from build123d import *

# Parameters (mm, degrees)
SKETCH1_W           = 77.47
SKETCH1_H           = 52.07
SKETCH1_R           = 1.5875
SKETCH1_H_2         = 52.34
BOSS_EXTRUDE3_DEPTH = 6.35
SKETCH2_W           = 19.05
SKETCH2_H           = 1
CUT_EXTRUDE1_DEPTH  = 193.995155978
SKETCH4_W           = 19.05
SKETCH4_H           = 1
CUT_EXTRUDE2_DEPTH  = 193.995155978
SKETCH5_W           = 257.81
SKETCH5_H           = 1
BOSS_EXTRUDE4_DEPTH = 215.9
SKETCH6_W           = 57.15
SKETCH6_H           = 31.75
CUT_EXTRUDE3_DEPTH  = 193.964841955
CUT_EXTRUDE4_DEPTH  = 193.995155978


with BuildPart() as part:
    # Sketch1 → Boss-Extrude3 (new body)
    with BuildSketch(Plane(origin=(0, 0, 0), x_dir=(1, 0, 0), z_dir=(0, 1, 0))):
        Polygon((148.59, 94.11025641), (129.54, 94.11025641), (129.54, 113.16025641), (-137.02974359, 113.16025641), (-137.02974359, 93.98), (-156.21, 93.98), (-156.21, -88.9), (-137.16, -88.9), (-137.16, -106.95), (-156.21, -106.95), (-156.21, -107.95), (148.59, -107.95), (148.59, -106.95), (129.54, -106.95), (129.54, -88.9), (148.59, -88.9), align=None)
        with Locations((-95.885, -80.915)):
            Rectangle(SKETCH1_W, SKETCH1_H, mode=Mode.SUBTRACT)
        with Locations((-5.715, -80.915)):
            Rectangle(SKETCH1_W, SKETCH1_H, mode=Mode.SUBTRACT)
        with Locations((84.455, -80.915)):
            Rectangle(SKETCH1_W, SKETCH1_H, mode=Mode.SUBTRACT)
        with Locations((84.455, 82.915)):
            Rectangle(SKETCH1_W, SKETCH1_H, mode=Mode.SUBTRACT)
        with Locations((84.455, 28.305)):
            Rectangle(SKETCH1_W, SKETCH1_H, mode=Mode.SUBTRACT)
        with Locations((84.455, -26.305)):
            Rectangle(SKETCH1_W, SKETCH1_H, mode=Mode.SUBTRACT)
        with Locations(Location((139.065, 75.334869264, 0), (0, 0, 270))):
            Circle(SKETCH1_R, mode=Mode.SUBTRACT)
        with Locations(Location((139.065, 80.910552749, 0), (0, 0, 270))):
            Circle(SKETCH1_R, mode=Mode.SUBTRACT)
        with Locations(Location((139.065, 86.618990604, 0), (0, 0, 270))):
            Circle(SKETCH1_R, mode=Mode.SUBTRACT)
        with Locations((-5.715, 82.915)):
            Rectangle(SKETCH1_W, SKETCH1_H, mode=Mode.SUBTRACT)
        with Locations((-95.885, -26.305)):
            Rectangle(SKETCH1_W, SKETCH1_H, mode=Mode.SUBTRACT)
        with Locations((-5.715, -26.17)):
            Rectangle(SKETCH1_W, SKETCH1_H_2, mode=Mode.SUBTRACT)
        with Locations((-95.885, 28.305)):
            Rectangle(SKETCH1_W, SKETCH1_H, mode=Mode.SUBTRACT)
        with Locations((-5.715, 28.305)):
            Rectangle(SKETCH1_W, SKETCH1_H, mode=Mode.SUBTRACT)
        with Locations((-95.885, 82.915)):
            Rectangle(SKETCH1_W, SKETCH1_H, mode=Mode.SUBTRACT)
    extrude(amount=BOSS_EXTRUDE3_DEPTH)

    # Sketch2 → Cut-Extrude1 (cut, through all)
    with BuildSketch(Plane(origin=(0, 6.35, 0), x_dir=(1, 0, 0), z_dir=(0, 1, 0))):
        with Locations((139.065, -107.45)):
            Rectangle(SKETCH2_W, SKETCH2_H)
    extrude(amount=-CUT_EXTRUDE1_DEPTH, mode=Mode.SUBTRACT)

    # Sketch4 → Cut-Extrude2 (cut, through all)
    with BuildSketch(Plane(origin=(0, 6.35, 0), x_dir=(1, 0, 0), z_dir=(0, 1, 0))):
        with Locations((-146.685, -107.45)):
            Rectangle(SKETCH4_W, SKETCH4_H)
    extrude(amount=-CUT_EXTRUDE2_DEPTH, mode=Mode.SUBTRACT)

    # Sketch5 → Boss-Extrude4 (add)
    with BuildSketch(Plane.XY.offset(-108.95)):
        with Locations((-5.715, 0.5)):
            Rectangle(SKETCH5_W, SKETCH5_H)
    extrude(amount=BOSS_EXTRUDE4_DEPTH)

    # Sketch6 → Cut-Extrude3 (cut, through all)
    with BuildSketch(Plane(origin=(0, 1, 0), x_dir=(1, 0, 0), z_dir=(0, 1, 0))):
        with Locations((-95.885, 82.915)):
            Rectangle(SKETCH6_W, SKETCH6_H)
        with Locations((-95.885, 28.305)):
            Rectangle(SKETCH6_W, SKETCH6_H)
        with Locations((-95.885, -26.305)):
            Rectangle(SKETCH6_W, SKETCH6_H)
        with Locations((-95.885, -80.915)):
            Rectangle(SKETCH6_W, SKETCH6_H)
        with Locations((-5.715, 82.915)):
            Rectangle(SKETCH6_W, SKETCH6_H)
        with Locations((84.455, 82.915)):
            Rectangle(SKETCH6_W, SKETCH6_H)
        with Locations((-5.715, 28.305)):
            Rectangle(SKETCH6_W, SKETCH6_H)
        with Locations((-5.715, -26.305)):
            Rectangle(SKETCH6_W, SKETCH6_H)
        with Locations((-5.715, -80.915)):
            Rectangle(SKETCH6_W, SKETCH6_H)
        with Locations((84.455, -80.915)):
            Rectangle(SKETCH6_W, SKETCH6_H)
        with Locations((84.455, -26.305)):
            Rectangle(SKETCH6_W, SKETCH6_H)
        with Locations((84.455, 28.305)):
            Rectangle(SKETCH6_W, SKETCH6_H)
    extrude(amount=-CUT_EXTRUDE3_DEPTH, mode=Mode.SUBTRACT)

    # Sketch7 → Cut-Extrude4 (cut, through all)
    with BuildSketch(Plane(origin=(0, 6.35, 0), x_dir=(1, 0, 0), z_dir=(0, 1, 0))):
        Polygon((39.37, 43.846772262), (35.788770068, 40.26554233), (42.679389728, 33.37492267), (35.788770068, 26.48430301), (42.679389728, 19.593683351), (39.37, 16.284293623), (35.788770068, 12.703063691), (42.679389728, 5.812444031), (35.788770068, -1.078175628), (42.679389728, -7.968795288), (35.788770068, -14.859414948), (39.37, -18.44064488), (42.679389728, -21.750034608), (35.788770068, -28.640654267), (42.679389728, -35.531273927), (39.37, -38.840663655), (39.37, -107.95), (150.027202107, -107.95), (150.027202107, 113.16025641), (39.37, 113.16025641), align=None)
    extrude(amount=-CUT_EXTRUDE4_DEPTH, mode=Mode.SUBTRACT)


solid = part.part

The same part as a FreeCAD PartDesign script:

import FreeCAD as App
import Part
import Sketcher

V = App.Vector
Q = App.Units.Quantity

doc = App.newDocument("Part")
body = doc.addObject("PartDesign::Body", "Body")

# Sketch on XZ plane
sketch1 = body.newObject("Sketcher::SketchObject", "Sketch")
sketch1.AttachmentSupport = (doc.getObject("XZ_Plane"), [""])
sketch1.MapMode = "FlatFace"
sketch1.addGeometry(Part.LineSegment(V(148.6, -94.1, 0), V(129.5, -94.1, 0)), False)
sketch1.addGeometry(Part.LineSegment(V(129.5, -94.1, 0), V(129.5, -113.2, 0)), False)
sketch1.addGeometry(Part.LineSegment(V(129.5, -113.2, 0), V(-137, -113.2, 0)), False)
sketch1.addGeometry(Part.LineSegment(V(-137, -113.2, 0), V(-137, -94, 0)), False)
sketch1.addGeometry(Part.LineSegment(V(-137, -94, 0), V(-156.2, -94, 0)), False)
sketch1.addGeometry(Part.LineSegment(V(-156.2, -94, 0), V(-156.2, 88.9, 0)), False)
sketch1.addGeometry(Part.LineSegment(V(-156.2, 88.9, 0), V(-137.2, 88.9, 0)), False)
sketch1.addGeometry(Part.LineSegment(V(-137.2, 88.9, 0), V(-137.2, 107, 0)), False)
sketch1.addGeometry(Part.LineSegment(V(-137.2, 107, 0), V(-156.2, 107, 0)), False)
sketch1.addGeometry(Part.LineSegment(V(-156.2, 107, 0), V(-156.2, 108, 0)), False)
sketch1.addGeometry(Part.LineSegment(V(-156.2, 108, 0), V(148.6, 108, 0)), False)
sketch1.addGeometry(Part.LineSegment(V(148.6, 108, 0), V(148.6, 107, 0)), False)
sketch1.addGeometry(Part.LineSegment(V(148.6, 107, 0), V(129.5, 107, 0)), False)
sketch1.addGeometry(Part.LineSegment(V(129.5, 107, 0), V(129.5, 88.9, 0)), False)
sketch1.addGeometry(Part.LineSegment(V(129.5, 88.9, 0), V(148.6, 88.9, 0)), False)
sketch1.addGeometry(Part.LineSegment(V(148.6, 88.9, 0), V(148.6, -94.1, 0)), False)
sketch1.addGeometry(Part.LineSegment(V(-57.1, 107, 0), V(-134.6, 107, 0)), False)
sketch1.addGeometry(Part.LineSegment(V(-134.6, 107, 0), V(-134.6, 54.9, 0)), False)
sketch1.addGeometry(Part.LineSegment(V(-134.6, 54.9, 0), V(-57.1, 54.9, 0)), False)
sketch1.addGeometry(Part.LineSegment(V(-57.1, 54.9, 0), V(-57.1, 107, 0)), False)
sketch1.addGeometry(Part.LineSegment(V(33, 107, 0), V(-44.5, 107, 0)), False)
sketch1.addGeometry(Part.LineSegment(V(-44.5, 107, 0), V(-44.5, 54.9, 0)), False)
sketch1.addGeometry(Part.LineSegment(V(-44.5, 54.9, 0), V(33, 54.9, 0)), False)
sketch1.addGeometry(Part.LineSegment(V(33, 54.9, 0), V(33, 107, 0)), False)
sketch1.addGeometry(Part.LineSegment(V(-57.1, 52.3, 0), V(-134.6, 52.3, 0)), False)
sketch1.addGeometry(Part.LineSegment(V(-134.6, 52.3, 0), V(-134.6, 0.3, 0)), False)
sketch1.addGeometry(Part.LineSegment(V(-134.6, 0.3, 0), V(-57.1, 0.3, 0)), False)
sketch1.addGeometry(Part.LineSegment(V(-57.1, 0.3, 0), V(-57.1, 52.3, 0)), False)
sketch1.addGeometry(Part.LineSegment(V(33, 52.3, 0), V(-44.5, 52.3, 0)), False)
sketch1.addGeometry(Part.LineSegment(V(-44.5, 52.3, 0), V(-44.5, 0, 0)), False)
sketch1.addGeometry(Part.LineSegment(V(-44.5, 0, 0), V(33, 0, 0)), False)
sketch1.addGeometry(Part.LineSegment(V(33, 0, 0), V(33, 52.3, 0)), False)
sketch1.addGeometry(Part.LineSegment(V(123.2, 107, 0), V(45.7, 107, 0)), False)
sketch1.addGeometry(Part.LineSegment(V(45.7, 107, 0), V(45.7, 54.9, 0)), False)
sketch1.addGeometry(Part.LineSegment(V(45.7, 54.9, 0), V(123.2, 54.9, 0)), False)
sketch1.addGeometry(Part.LineSegment(V(123.2, 54.9, 0), V(123.2, 107, 0)), False)
sketch1.addGeometry(Part.LineSegment(V(123.2, 52.3, 0), V(45.7, 52.3, 0)), False)
sketch1.addGeometry(Part.LineSegment(V(45.7, 52.3, 0), V(45.7, 0.3, 0)), False)
sketch1.addGeometry(Part.LineSegment(V(45.7, 0.3, 0), V(123.2, 0.3, 0)), False)
sketch1.addGeometry(Part.LineSegment(V(123.2, 0.3, 0), V(123.2, 52.3, 0)), False)
sketch1.addGeometry(Part.LineSegment(V(-57.1, -2.3, 0), V(-134.6, -2.3, 0)), False)
sketch1.addGeometry(Part.LineSegment(V(-134.6, -2.3, 0), V(-134.6, -54.3, 0)), False)
sketch1.addGeometry(Part.LineSegment(V(-134.6, -54.3, 0), V(-57.1, -54.3, 0)), False)
sketch1.addGeometry(Part.LineSegment(V(-57.1, -54.3, 0), V(-57.1, -2.3, 0)), False)
sketch1.addGeometry(Part.LineSegment(V(33, -2.3, 0), V(-44.5, -2.3, 0)), False)
sketch1.addGeometry(Part.LineSegment(V(-44.5, -2.3, 0), V(-44.5, -54.3, 0)), False)
sketch1.addGeometry(Part.LineSegment(V(-44.5, -54.3, 0), V(33, -54.3, 0)), False)
sketch1.addGeometry(Part.LineSegment(V(33, -54.3, 0), V(33, -2.3, 0)), False)
sketch1.addGeometry(Part.LineSegment(V(-57.1, -56.9, 0), V(-134.6, -56.9, 0)), False)
sketch1.addGeometry(Part.LineSegment(V(-134.6, -56.9, 0), V(-134.6, -109, 0)), False)
sketch1.addGeometry(Part.LineSegment(V(-134.6, -109, 0), V(-57.1, -109, 0)), False)
sketch1.addGeometry(Part.LineSegment(V(-57.1, -109, 0), V(-57.1, -56.9, 0)), False)
sketch1.addGeometry(Part.LineSegment(V(33, -56.9, 0), V(-44.5, -56.9, 0)), False)
sketch1.addGeometry(Part.LineSegment(V(-44.5, -56.9, 0), V(-44.5, -109, 0)), False)
sketch1.addGeometry(Part.LineSegment(V(-44.5, -109, 0), V(33, -109, 0)), False)
sketch1.addGeometry(Part.LineSegment(V(33, -109, 0), V(33, -56.9, 0)), False)
sketch1.addGeometry(Part.LineSegment(V(123.2, -2.3, 0), V(45.7, -2.3, 0)), False)
sketch1.addGeometry(Part.LineSegment(V(45.7, -2.3, 0), V(45.7, -54.3, 0)), False)
sketch1.addGeometry(Part.LineSegment(V(45.7, -54.3, 0), V(123.2, -54.3, 0)), False)
sketch1.addGeometry(Part.LineSegment(V(123.2, -54.3, 0), V(123.2, -2.3, 0)), False)
sketch1.addGeometry(Part.Circle(V(139.1, -75.3, 0), V(0, 0, 1), 1.6), False)
sketch1.addGeometry(Part.Circle(V(139.1, -80.9, 0), V(0, 0, 1), 1.6), False)
sketch1.addGeometry(Part.LineSegment(V(123.2, -56.9, 0), V(45.7, -56.9, 0)), False)
sketch1.addGeometry(Part.LineSegment(V(45.7, -56.9, 0), V(45.7, -109, 0)), False)
sketch1.addGeometry(Part.LineSegment(V(45.7, -109, 0), V(123.2, -109, 0)), False)
sketch1.addGeometry(Part.LineSegment(V(123.2, -109, 0), V(123.2, -56.9, 0)), False)
sketch1.addGeometry(Part.Circle(V(139.1, -86.6, 0), V(0, 0, 1), 1.6), False)
sketch1.addConstraint(Sketcher.Constraint("Coincident", 0, 2, 1, 1))
sketch1.addConstraint(Sketcher.Constraint("Coincident", 1, 2, 2, 1))
sketch1.addConstraint(Sketcher.Constraint("Coincident", 2, 2, 3, 1))
sketch1.addConstraint(Sketcher.Constraint("Coincident", 3, 2, 4, 1))
sketch1.addConstraint(Sketcher.Constraint("Coincident", 4, 2, 5, 1))
sketch1.addConstraint(Sketcher.Constraint("Coincident", 5, 2, 6, 1))
sketch1.addConstraint(Sketcher.Constraint("Coincident", 6, 2, 7, 1))
sketch1.addConstraint(Sketcher.Constraint("Coincident", 7, 2, 8, 1))
sketch1.addConstraint(Sketcher.Constraint("Coincident", 8, 2, 9, 1))
sketch1.addConstraint(Sketcher.Constraint("Coincident", 9, 2, 10, 1))
sketch1.addConstraint(Sketcher.Constraint("Coincident", 10, 2, 11, 1))
sketch1.addConstraint(Sketcher.Constraint("Coincident", 11, 2, 12, 1))
sketch1.addConstraint(Sketcher.Constraint("Coincident", 12, 2, 13, 1))
sketch1.addConstraint(Sketcher.Constraint("Coincident", 13, 2, 14, 1))
sketch1.addConstraint(Sketcher.Constraint("Coincident", 14, 2, 15, 1))
sketch1.addConstraint(Sketcher.Constraint("Coincident", 15, 2, 0, 1))
sketch1.addConstraint(Sketcher.Constraint("Coincident", 16, 2, 17, 1))
sketch1.addConstraint(Sketcher.Constraint("Coincident", 17, 2, 18, 1))
sketch1.addConstraint(Sketcher.Constraint("Coincident", 18, 2, 19, 1))
sketch1.addConstraint(Sketcher.Constraint("Coincident", 19, 2, 16, 1))
sketch1.addConstraint(Sketcher.Constraint("Coincident", 20, 2, 21, 1))
sketch1.addConstraint(Sketcher.Constraint("Coincident", 21, 2, 22, 1))
sketch1.addConstraint(Sketcher.Constraint("Coincident", 22, 2, 23, 1))
sketch1.addConstraint(Sketcher.Constraint("Coincident", 23, 2, 20, 1))
sketch1.addConstraint(Sketcher.Constraint("Coincident", 24, 2, 25, 1))
sketch1.addConstraint(Sketcher.Constraint("Coincident", 25, 2, 26, 1))
sketch1.addConstraint(Sketcher.Constraint("Coincident", 26, 2, 27, 1))
sketch1.addConstraint(Sketcher.Constraint("Coincident", 27, 2, 24, 1))
sketch1.addConstraint(Sketcher.Constraint("Coincident", 28, 2, 29, 1))
sketch1.addConstraint(Sketcher.Constraint("Coincident", 29, 2, 30, 1))
sketch1.addConstraint(Sketcher.Constraint("Coincident", 30, 2, 31, 1))
sketch1.addConstraint(Sketcher.Constraint("Coincident", 31, 2, 28, 1))
sketch1.addConstraint(Sketcher.Constraint("Coincident", 32, 2, 33, 1))
sketch1.addConstraint(Sketcher.Constraint("Coincident", 33, 2, 34, 1))
sketch1.addConstraint(Sketcher.Constraint("Coincident", 34, 2, 35, 1))
sketch1.addConstraint(Sketcher.Constraint("Coincident", 35, 2, 32, 1))
sketch1.addConstraint(Sketcher.Constraint("Coincident", 36, 2, 37, 1))
sketch1.addConstraint(Sketcher.Constraint("Coincident", 37, 2, 38, 1))
sketch1.addConstraint(Sketcher.Constraint("Coincident", 38, 2, 39, 1))
sketch1.addConstraint(Sketcher.Constraint("Coincident", 39, 2, 36, 1))
sketch1.addConstraint(Sketcher.Constraint("Coincident", 40, 2, 41, 1))
sketch1.addConstraint(Sketcher.Constraint("Coincident", 41, 2, 42, 1))
sketch1.addConstraint(Sketcher.Constraint("Coincident", 42, 2, 43, 1))
sketch1.addConstraint(Sketcher.Constraint("Coincident", 43, 2, 40, 1))
sketch1.addConstraint(Sketcher.Constraint("Coincident", 44, 2, 45, 1))
sketch1.addConstraint(Sketcher.Constraint("Coincident", 45, 2, 46, 1))
sketch1.addConstraint(Sketcher.Constraint("Coincident", 46, 2, 47, 1))
sketch1.addConstraint(Sketcher.Constraint("Coincident", 47, 2, 44, 1))
sketch1.addConstraint(Sketcher.Constraint("Coincident", 48, 2, 49, 1))
sketch1.addConstraint(Sketcher.Constraint("Coincident", 49, 2, 50, 1))
sketch1.addConstraint(Sketcher.Constraint("Coincident", 50, 2, 51, 1))
sketch1.addConstraint(Sketcher.Constraint("Coincident", 51, 2, 48, 1))
sketch1.addConstraint(Sketcher.Constraint("Coincident", 52, 2, 53, 1))
sketch1.addConstraint(Sketcher.Constraint("Coincident", 53, 2, 54, 1))
sketch1.addConstraint(Sketcher.Constraint("Coincident", 54, 2, 55, 1))
sketch1.addConstraint(Sketcher.Constraint("Coincident", 55, 2, 52, 1))
sketch1.addConstraint(Sketcher.Constraint("Coincident", 56, 2, 57, 1))
sketch1.addConstraint(Sketcher.Constraint("Coincident", 57, 2, 58, 1))
sketch1.addConstraint(Sketcher.Constraint("Coincident", 58, 2, 59, 1))
sketch1.addConstraint(Sketcher.Constraint("Coincident", 59, 2, 56, 1))
sketch1.addConstraint(Sketcher.Constraint("Coincident", 62, 2, 63, 1))
sketch1.addConstraint(Sketcher.Constraint("Coincident", 63, 2, 64, 1))
sketch1.addConstraint(Sketcher.Constraint("Coincident", 64, 2, 65, 1))
sketch1.addConstraint(Sketcher.Constraint("Coincident", 65, 2, 62, 1))
sketch1.addConstraint(Sketcher.Constraint("Horizontal", 0))
sketch1.addConstraint(Sketcher.Constraint("Vertical", 1))
sketch1.addConstraint(Sketcher.Constraint("Horizontal", 2))
sketch1.addConstraint(Sketcher.Constraint("Vertical", 3))
sketch1.addConstraint(Sketcher.Constraint("Horizontal", 4))
sketch1.addConstraint(Sketcher.Constraint("Vertical", 5))
sketch1.addConstraint(Sketcher.Constraint("Horizontal", 6))
sketch1.addConstraint(Sketcher.Constraint("Vertical", 7))
sketch1.addConstraint(Sketcher.Constraint("Horizontal", 8))
sketch1.addConstraint(Sketcher.Constraint("Vertical", 9))
sketch1.addConstraint(Sketcher.Constraint("Horizontal", 10))
sketch1.addConstraint(Sketcher.Constraint("Vertical", 11))
sketch1.addConstraint(Sketcher.Constraint("Horizontal", 12))
sketch1.addConstraint(Sketcher.Constraint("Vertical", 13))
sketch1.addConstraint(Sketcher.Constraint("Horizontal", 14))
sketch1.addConstraint(Sketcher.Constraint("Vertical", 15))
sketch1.addConstraint(Sketcher.Constraint("Horizontal", 16))
sketch1.addConstraint(Sketcher.Constraint("Vertical", 17))
sketch1.addConstraint(Sketcher.Constraint("Horizontal", 18))
sketch1.addConstraint(Sketcher.Constraint("Vertical", 19))
sketch1.addConstraint(Sketcher.Constraint("Horizontal", 20))
sketch1.addConstraint(Sketcher.Constraint("Vertical", 21))
sketch1.addConstraint(Sketcher.Constraint("Horizontal", 22))
sketch1.addConstraint(Sketcher.Constraint("Vertical", 23))
sketch1.addConstraint(Sketcher.Constraint("Horizontal", 24))
sketch1.addConstraint(Sketcher.Constraint("Vertical", 25))
sketch1.addConstraint(Sketcher.Constraint("Horizontal", 26))
sketch1.addConstraint(Sketcher.Constraint("Vertical", 27))
sketch1.addConstraint(Sketcher.Constraint("Horizontal", 28))
sketch1.addConstraint(Sketcher.Constraint("Vertical", 29))
sketch1.addConstraint(Sketcher.Constraint("Horizontal", 30))
sketch1.addConstraint(Sketcher.Constraint("Vertical", 31))
sketch1.addConstraint(Sketcher.Constraint("Horizontal", 32))
sketch1.addConstraint(Sketcher.Constraint("Vertical", 33))
sketch1.addConstraint(Sketcher.Constraint("Horizontal", 34))
sketch1.addConstraint(Sketcher.Constraint("Vertical", 35))
sketch1.addConstraint(Sketcher.Constraint("Horizontal", 36))
sketch1.addConstraint(Sketcher.Constraint("Vertical", 37))
sketch1.addConstraint(Sketcher.Constraint("Horizontal", 38))
sketch1.addConstraint(Sketcher.Constraint("Vertical", 39))
sketch1.addConstraint(Sketcher.Constraint("Horizontal", 40))
sketch1.addConstraint(Sketcher.Constraint("Vertical", 41))
sketch1.addConstraint(Sketcher.Constraint("Horizontal", 42))
sketch1.addConstraint(Sketcher.Constraint("Vertical", 43))
sketch1.addConstraint(Sketcher.Constraint("Horizontal", 44))
sketch1.addConstraint(Sketcher.Constraint("Vertical", 45))
sketch1.addConstraint(Sketcher.Constraint("Horizontal", 46))
sketch1.addConstraint(Sketcher.Constraint("Vertical", 47))
sketch1.addConstraint(Sketcher.Constraint("Horizontal", 48))
sketch1.addConstraint(Sketcher.Constraint("Vertical", 49))
sketch1.addConstraint(Sketcher.Constraint("Horizontal", 50))
sketch1.addConstraint(Sketcher.Constraint("Vertical", 51))
sketch1.addConstraint(Sketcher.Constraint("Horizontal", 52))
sketch1.addConstraint(Sketcher.Constraint("Vertical", 53))
sketch1.addConstraint(Sketcher.Constraint("Horizontal", 54))
sketch1.addConstraint(Sketcher.Constraint("Vertical", 55))
sketch1.addConstraint(Sketcher.Constraint("Horizontal", 56))
sketch1.addConstraint(Sketcher.Constraint("Vertical", 57))
sketch1.addConstraint(Sketcher.Constraint("Horizontal", 58))
sketch1.addConstraint(Sketcher.Constraint("Vertical", 59))
sketch1.addConstraint(Sketcher.Constraint("Horizontal", 62))
sketch1.addConstraint(Sketcher.Constraint("Vertical", 63))
sketch1.addConstraint(Sketcher.Constraint("Horizontal", 64))
sketch1.addConstraint(Sketcher.Constraint("Vertical", 65))
sketch1.addConstraint(Sketcher.Constraint("Equal", 60, 61))
sketch1.addConstraint(Sketcher.Constraint("Equal", 61, 66))
sketch1.addConstraint(Sketcher.Constraint("PointOnObject", 29, 2, -1))
sketch1.addConstraint(Sketcher.Constraint("Horizontal", 8, 2, 11, 2))
sketch1.addConstraint(Sketcher.Constraint("Horizontal", 6, 2, 13, 2))
sketch1.addConstraint(Sketcher.Constraint("Horizontal", 12, 2, 16, 2))
sketch1.addConstraint(Sketcher.Constraint("Horizontal", 19, 2, 20, 2))
sketch1.addConstraint(Sketcher.Constraint("Horizontal", 18, 2, 21, 2))
sketch1.addConstraint(Sketcher.Constraint("Horizontal", 27, 2, 28, 2))
sketch1.addConstraint(Sketcher.Constraint("Horizontal", 23, 2, 32, 2))
sketch1.addConstraint(Sketcher.Constraint("Horizontal", 22, 2, 33, 2))
sketch1.addConstraint(Sketcher.Constraint("Horizontal", 31, 2, 36, 2))
sketch1.addConstraint(Sketcher.Constraint("Horizontal", 26, 2, 37, 2))
sketch1.addConstraint(Sketcher.Constraint("Horizontal", 43, 2, 44, 2))
sketch1.addConstraint(Sketcher.Constraint("Horizontal", 42, 2, 45, 2))
sketch1.addConstraint(Sketcher.Constraint("Horizontal", 51, 2, 52, 2))
sketch1.addConstraint(Sketcher.Constraint("Horizontal", 50, 2, 53, 2))
sketch1.addConstraint(Sketcher.Constraint("Horizontal", 47, 2, 56, 2))
sketch1.addConstraint(Sketcher.Constraint("Horizontal", 46, 2, 57, 2))
sketch1.addConstraint(Sketcher.Constraint("Horizontal", 55, 2, 62, 2))
sketch1.addConstraint(Sketcher.Constraint("Horizontal", 54, 2, 63, 2))
sketch1.addConstraint(Sketcher.Constraint("Vertical", 60, 3, 61, 3))
sketch1.addConstraint(Sketcher.Constraint("Vertical", 61, 3, 66, 3))
sketch1.addConstraint(Sketcher.Constraint("Vertical", 5, 2, 8, 2))
sketch1.addConstraint(Sketcher.Constraint("Vertical", 1, 2, 12, 2))
sketch1.addConstraint(Sketcher.Constraint("Vertical", 11, 2, 14, 2))
sketch1.addConstraint(Sketcher.Constraint("Vertical", 17, 2, 24, 2))
sketch1.addConstraint(Sketcher.Constraint("Vertical", 19, 2, 26, 2))
sketch1.addConstraint(Sketcher.Constraint("Vertical", 21, 2, 28, 2))
sketch1.addConstraint(Sketcher.Constraint("Vertical", 23, 2, 30, 2))
sketch1.addConstraint(Sketcher.Constraint("Vertical", 33, 2, 36, 2))
sketch1.addConstraint(Sketcher.Constraint("Vertical", 35, 2, 38, 2))
sketch1.addConstraint(Sketcher.Constraint("Vertical", 25, 2, 40, 2))
sketch1.addConstraint(Sketcher.Constraint("Vertical", 27, 2, 42, 2))
sketch1.addConstraint(Sketcher.Constraint("Vertical", 29, 2, 44, 2))
sketch1.addConstraint(Sketcher.Constraint("Vertical", 31, 2, 46, 2))
sketch1.addConstraint(Sketcher.Constraint("Vertical", 41, 2, 48, 2))
sketch1.addConstraint(Sketcher.Constraint("Vertical", 43, 2, 50, 2))
sketch1.addConstraint(Sketcher.Constraint("Vertical", 45, 2, 52, 2))
sketch1.addConstraint(Sketcher.Constraint("Vertical", 47, 2, 54, 2))
sketch1.addConstraint(Sketcher.Constraint("Vertical", 37, 2, 56, 2))
sketch1.addConstraint(Sketcher.Constraint("Vertical", 39, 2, 58, 2))
sketch1.addConstraint(Sketcher.Constraint("Vertical", 57, 2, 62, 2))
sketch1.addConstraint(Sketcher.Constraint("Vertical", 59, 2, 64, 2))
sketch1.addConstraint(Sketcher.Constraint("Equal", 0, 6))
sketch1.addConstraint(Sketcher.Constraint("Equal", 18, 20))
sketch1.addConstraint(Sketcher.Constraint("Equal", 30, 32))
sketch1.addConstraint(Sketcher.Constraint("Equal", 14, 1))
sketch1.addConstraint(Sketcher.Constraint("Equal", 4, 3))
sketch1.addConstraint(Sketcher.Constraint("Equal", 23, 25))
sketch1.addConstraint(Sketcher.Constraint("Equal", 39, 41))
sketch1.addConstraint(Sketcher.Constraint("Equal", 47, 49))
sketch1.addConstraint(Sketcher.Constraint("DistanceX", 10, 1, 10, 2, Q("12 in")))
sketch1.addConstraint(Sketcher.Constraint("Diameter", 60, Q("0.125 in")))
sketch1.addConstraint(Sketcher.Constraint("DistanceY", 5, 1, 5, 2, Q("7.2 in")))
sketch1.addConstraint(Sketcher.Constraint("DistanceX", 0, 2, 0, 1, Q("0.75 in")))
sketch1.addConstraint(Sketcher.Constraint("DistanceX", 16, 2, 16, 1, Q("3.05 in")))
sketch1.addConstraint(Sketcher.Constraint("DistanceY", 17, 2, 17, 1, Q("2.05 in")))
sketch1.addConstraint(Sketcher.Constraint("DistanceX", -1, 1, 0, 2, Q("5.1 in")))
sketch1.addConstraint(Sketcher.Constraint("DistanceY", 3, 2, -1, 1, Q("3.7 in")))
sketch1.addConstraint(Sketcher.Constraint("DistanceX", 16, 2, -1, 1, Q("5.3 in")))
sketch1.addConstraint(Sketcher.Constraint("DistanceX", -1, 1, 22, 2, Q("1.3 in")))
sketch1.addConstraint(Sketcher.Constraint("DistanceX", -1, 1, 32, 2, Q("1.8 in")))
sketch1.addConstraint(Sketcher.Constraint("DistanceY", -1, 1, 9, 2, Q("4.25 in")))
sketch1.addConstraint(Sketcher.Constraint("DistanceX", -1, 1, 60, 3, Q("5.475 in")))
sketch1.addConstraint(Sketcher.Constraint("DistanceY", 7, 1, 7, 2, Q("18.05 mm")))
sketch1.addConstraint(Sketcher.Constraint("DistanceY", 29, 2, 29, 1, Q("52.34 mm")))
sketch1.addConstraint(Sketcher.Constraint("DistanceY", 40, 2, -1, 1, Q("2.27 mm")))
sketch1.addConstraint(Sketcher.Constraint("DistanceY", 48, 2, -1, 1, Q("56.88 mm")))
sketch1.addConstraint(Sketcher.Constraint("DistanceX", 2, 2, 2, 1, Q("266.569744 mm")))
sketch1.addConstraint(Sketcher.Constraint("DistanceY", 60, 3, -1, 1, Q("75.334869 mm")))
sketch1.addConstraint(Sketcher.Constraint("DistanceY", 66, 3, -1, 1, Q("86.618991 mm")))
sketch1.addConstraint(Sketcher.Constraint("DistanceY", 61, 3, -1, 1, Q("80.910553 mm")))
pad1 = body.newObject("PartDesign::Pad", "Pad")
pad1.Profile = sketch1
pad1.Length = Q("0.25 in")
pad1.Reversed = True

# Sketch on XZ plane
sketch2 = body.newObject("Sketcher::SketchObject", "Sketch001")
sketch2.AttachmentSupport = (doc.getObject("XZ_Plane"), [""])
sketch2.MapMode = "FlatFace"
sketch2.AttachmentOffset = App.Placement(V(0, 0, -0.25 * 25.4), App.Rotation())
sketch2.addGeometry(Part.LineSegment(V(129.5, 107, 0), V(129.5, 108, 0)), False)
sketch2.addGeometry(Part.LineSegment(V(129.5, 108, 0), V(148.6, 108, 0)), False)
sketch2.addGeometry(Part.LineSegment(V(148.6, 108, 0), V(148.6, 107, 0)), False)
sketch2.addGeometry(Part.LineSegment(V(148.6, 107, 0), V(129.5, 107, 0)), False)
sketch2.addConstraint(Sketcher.Constraint("Coincident", 0, 2, 1, 1))
sketch2.addConstraint(Sketcher.Constraint("Coincident", 1, 2, 2, 1))
sketch2.addConstraint(Sketcher.Constraint("Coincident", 2, 2, 3, 1))
sketch2.addConstraint(Sketcher.Constraint("Coincident", 3, 2, 0, 1))
sketch2.addConstraint(Sketcher.Constraint("Vertical", 0))
sketch2.addConstraint(Sketcher.Constraint("Horizontal", 1))
sketch2.addConstraint(Sketcher.Constraint("Vertical", 2))
sketch2.addConstraint(Sketcher.Constraint("Horizontal", 3))
sketch2.addConstraint(Sketcher.Constraint("DistanceX", 1, 1, 1, 2, Q("0.75 in")))
sketch2.addConstraint(Sketcher.Constraint("DistanceX", -1, 1, 0, 2, Q("5.1 in")))
sketch2.addConstraint(Sketcher.Constraint("DistanceY", -1, 1, 0, 2, Q("4.25 in")))
sketch2.addConstraint(Sketcher.Constraint("DistanceY", 0, 1, 0, 2, Q("1 mm")))
pocket1 = body.newObject("PartDesign::Pocket", "Pocket")
pocket1.Profile = sketch2
pocket1.Type = "ThroughAll"
pocket1.Reversed = True

# Sketch on XZ plane
sketch3 = body.newObject("Sketcher::SketchObject", "Sketch002")
sketch3.AttachmentSupport = (doc.getObject("XZ_Plane"), [""])
sketch3.MapMode = "FlatFace"
sketch3.AttachmentOffset = App.Placement(V(0, 0, -0.25 * 25.4), App.Rotation())
sketch3.addGeometry(Part.LineSegment(V(-156.2, 107, 0), V(-156.2, 108, 0)), False)
sketch3.addGeometry(Part.LineSegment(V(-156.2, 108, 0), V(-137.2, 108, 0)), False)
sketch3.addGeometry(Part.LineSegment(V(-137.2, 108, 0), V(-137.2, 107, 0)), False)
sketch3.addGeometry(Part.LineSegment(V(-137.2, 107, 0), V(-156.2, 107, 0)), False)
sketch3.addConstraint(Sketcher.Constraint("Coincident", 0, 2, 1, 1))
sketch3.addConstraint(Sketcher.Constraint("Coincident", 1, 2, 2, 1))
sketch3.addConstraint(Sketcher.Constraint("Coincident", 2, 2, 3, 1))
sketch3.addConstraint(Sketcher.Constraint("Coincident", 3, 2, 0, 1))
sketch3.addConstraint(Sketcher.Constraint("Vertical", 0))
sketch3.addConstraint(Sketcher.Constraint("Horizontal", 1))
sketch3.addConstraint(Sketcher.Constraint("Vertical", 2))
sketch3.addConstraint(Sketcher.Constraint("Horizontal", 3))
sketch3.addConstraint(Sketcher.Constraint("DistanceX", 1, 1, 1, 2, Q("0.75 in")))
sketch3.addConstraint(Sketcher.Constraint("DistanceX", 1, 2, -1, 1, Q("5.4 in")))
sketch3.addConstraint(Sketcher.Constraint("DistanceY", -1, 1, 0, 2, Q("4.25 in")))
sketch3.addConstraint(Sketcher.Constraint("DistanceY", 0, 1, 0, 2, Q("1 mm")))
pocket2 = body.newObject("PartDesign::Pocket", "Pocket001")
pocket2.Profile = sketch3
pocket2.Type = "ThroughAll"
pocket2.Reversed = True

# Sketch on XY plane
sketch4 = body.newObject("Sketcher::SketchObject", "Sketch003")
sketch4.AttachmentSupport = (doc.getObject("XY_Plane"), [""])
sketch4.MapMode = "FlatFace"
sketch4.AttachmentOffset = App.Placement(V(0, 0, -108.95), App.Rotation())
sketch4.addGeometry(Part.LineSegment(V(-134.6, 1, 0), V(-134.6, 0, 0)), False)
sketch4.addGeometry(Part.LineSegment(V(-134.6, 0, 0), V(123.2, 0, 0)), False)
sketch4.addGeometry(Part.LineSegment(V(123.2, 0, 0), V(123.2, 1, 0)), False)
sketch4.addGeometry(Part.LineSegment(V(123.2, 1, 0), V(-134.6, 1, 0)), False)
sketch4.addConstraint(Sketcher.Constraint("Coincident", 0, 2, 1, 1))
sketch4.addConstraint(Sketcher.Constraint("Coincident", 1, 2, 2, 1))
sketch4.addConstraint(Sketcher.Constraint("Coincident", 2, 2, 3, 1))
sketch4.addConstraint(Sketcher.Constraint("Coincident", 3, 2, 0, 1))
sketch4.addConstraint(Sketcher.Constraint("Vertical", 0))
sketch4.addConstraint(Sketcher.Constraint("Horizontal", 1))
sketch4.addConstraint(Sketcher.Constraint("Vertical", 2))
sketch4.addConstraint(Sketcher.Constraint("Horizontal", 3))
sketch4.addConstraint(Sketcher.Constraint("PointOnObject", 0, 2, -1))
sketch4.addConstraint(Sketcher.Constraint("DistanceX", 1, 1, 1, 2, Q("10.15 in")))
sketch4.addConstraint(Sketcher.Constraint("DistanceX", 0, 2, -1, 1, Q("5.3 in")))
sketch4.addConstraint(Sketcher.Constraint("DistanceY", 0, 2, 0, 1, Q("1 mm")))
pad2 = body.newObject("PartDesign::Pad", "Pad001")
pad2.Profile = sketch4
pad2.Length = Q("8.5 in")

# Sketch on XZ plane
sketch5 = body.newObject("Sketcher::SketchObject", "Sketch004")
sketch5.AttachmentSupport = (doc.getObject("XZ_Plane"), [""])
sketch5.MapMode = "FlatFace"
sketch5.AttachmentOffset = App.Placement(V(0, 0, -1), App.Rotation())
sketch5.addGeometry(Part.LineSegment(V(-124, -99, 0), V(-124, -67, 0)), False)
sketch5.addGeometry(Part.LineSegment(V(-124, -67, 0), V(-67, -67, 0)), False)
sketch5.addGeometry(Part.LineSegment(V(-67, -67, 0), V(-67, -99, 0)), False)
sketch5.addGeometry(Part.LineSegment(V(-67, -99, 0), V(-124, -99, 0)), False)
sketch5.addGeometry(Part.LineSegment(V(-124, -44, 0), V(-124, -12, 0)), False)
sketch5.addGeometry(Part.LineSegment(V(-124, -12, 0), V(-67, -12, 0)), False)
sketch5.addGeometry(Part.LineSegment(V(-67, -12, 0), V(-67, -44, 0)), False)
sketch5.addGeometry(Part.LineSegment(V(-67, -44, 0), V(-124, -44, 0)), False)
sketch5.addGeometry(Part.LineSegment(V(-124, 10, 0), V(-124, 42, 0)), False)
sketch5.addGeometry(Part.LineSegment(V(-124, 42, 0), V(-67, 42, 0)), False)
sketch5.addGeometry(Part.LineSegment(V(-67, 42, 0), V(-67, 10, 0)), False)
sketch5.addGeometry(Part.LineSegment(V(-67, 10, 0), V(-124, 10, 0)), False)
sketch5.addGeometry(Part.LineSegment(V(-124, 65, 0), V(-124, 97, 0)), False)
sketch5.addGeometry(Part.LineSegment(V(-124, 97, 0), V(-67, 97, 0)), False)
sketch5.addGeometry(Part.LineSegment(V(-67, 97, 0), V(-67, 65, 0)), False)
sketch5.addGeometry(Part.LineSegment(V(-67, 65, 0), V(-124, 65, 0)), False)
sketch5.addGeometry(Part.LineSegment(V(-34, -99, 0), V(-34, -67, 0)), False)
sketch5.addGeometry(Part.LineSegment(V(-34, -67, 0), V(23, -67, 0)), False)
sketch5.addGeometry(Part.LineSegment(V(23, -67, 0), V(23, -99, 0)), False)
sketch5.addGeometry(Part.LineSegment(V(23, -99, 0), V(-34, -99, 0)), False)
sketch5.addGeometry(Part.LineSegment(V(56, -99, 0), V(56, -67, 0)), False)
sketch5.addGeometry(Part.LineSegment(V(56, -67, 0), V(113, -67, 0)), False)
sketch5.addGeometry(Part.LineSegment(V(113, -67, 0), V(113, -99, 0)), False)
sketch5.addGeometry(Part.LineSegment(V(113, -99, 0), V(56, -99, 0)), False)
sketch5.addGeometry(Part.LineSegment(V(-34, -44, 0), V(-34, -12, 0)), False)
sketch5.addGeometry(Part.LineSegment(V(-34, -12, 0), V(23, -12, 0)), False)
sketch5.addGeometry(Part.LineSegment(V(23, -12, 0), V(23, -44, 0)), False)
sketch5.addGeometry(Part.LineSegment(V(23, -44, 0), V(-34, -44, 0)), False)
sketch5.addGeometry(Part.LineSegment(V(-34, 10, 0), V(-34, 42, 0)), False)
sketch5.addGeometry(Part.LineSegment(V(-34, 42, 0), V(23, 42, 0)), False)
sketch5.addGeometry(Part.LineSegment(V(23, 42, 0), V(23, 10, 0)), False)
sketch5.addGeometry(Part.LineSegment(V(23, 10, 0), V(-34, 10, 0)), False)
sketch5.addGeometry(Part.LineSegment(V(-34, 65, 0), V(-34, 97, 0)), False)
sketch5.addGeometry(Part.LineSegment(V(-34, 97, 0), V(23, 97, 0)), False)
sketch5.addGeometry(Part.LineSegment(V(23, 97, 0), V(23, 65, 0)), False)
sketch5.addGeometry(Part.LineSegment(V(23, 65, 0), V(-34, 65, 0)), False)
sketch5.addGeometry(Part.LineSegment(V(56, 65, 0), V(56, 97, 0)), False)
sketch5.addGeometry(Part.LineSegment(V(56, 97, 0), V(113, 97, 0)), False)
sketch5.addGeometry(Part.LineSegment(V(113, 97, 0), V(113, 65, 0)), False)
sketch5.addGeometry(Part.LineSegment(V(113, 65, 0), V(56, 65, 0)), False)
sketch5.addGeometry(Part.LineSegment(V(56, 10, 0), V(56, 42, 0)), False)
sketch5.addGeometry(Part.LineSegment(V(56, 42, 0), V(113, 42, 0)), False)
sketch5.addGeometry(Part.LineSegment(V(113, 42, 0), V(113, 10, 0)), False)
sketch5.addGeometry(Part.LineSegment(V(113, 10, 0), V(56, 10, 0)), False)
sketch5.addGeometry(Part.LineSegment(V(56, -44, 0), V(56, -12, 0)), False)
sketch5.addGeometry(Part.LineSegment(V(56, -12, 0), V(113, -12, 0)), False)
sketch5.addGeometry(Part.LineSegment(V(113, -12, 0), V(113, -44, 0)), False)
sketch5.addGeometry(Part.LineSegment(V(113, -44, 0), V(56, -44, 0)), False)
sketch5.addConstraint(Sketcher.Constraint("Coincident", 0, 2, 1, 1))
sketch5.addConstraint(Sketcher.Constraint("Coincident", 1, 2, 2, 1))
sketch5.addConstraint(Sketcher.Constraint("Coincident", 2, 2, 3, 1))
sketch5.addConstraint(Sketcher.Constraint("Coincident", 3, 2, 0, 1))
sketch5.addConstraint(Sketcher.Constraint("Coincident", 4, 2, 5, 1))
sketch5.addConstraint(Sketcher.Constraint("Coincident", 5, 2, 6, 1))
sketch5.addConstraint(Sketcher.Constraint("Coincident", 6, 2, 7, 1))
sketch5.addConstraint(Sketcher.Constraint("Coincident", 7, 2, 4, 1))
sketch5.addConstraint(Sketcher.Constraint("Coincident", 8, 2, 9, 1))
sketch5.addConstraint(Sketcher.Constraint("Coincident", 9, 2, 10, 1))
sketch5.addConstraint(Sketcher.Constraint("Coincident", 10, 2, 11, 1))
sketch5.addConstraint(Sketcher.Constraint("Coincident", 11, 2, 8, 1))
sketch5.addConstraint(Sketcher.Constraint("Coincident", 12, 2, 13, 1))
sketch5.addConstraint(Sketcher.Constraint("Coincident", 13, 2, 14, 1))
sketch5.addConstraint(Sketcher.Constraint("Coincident", 14, 2, 15, 1))
sketch5.addConstraint(Sketcher.Constraint("Coincident", 15, 2, 12, 1))
sketch5.addConstraint(Sketcher.Constraint("Coincident", 16, 2, 17, 1))
sketch5.addConstraint(Sketcher.Constraint("Coincident", 17, 2, 18, 1))
sketch5.addConstraint(Sketcher.Constraint("Coincident", 18, 2, 19, 1))
sketch5.addConstraint(Sketcher.Constraint("Coincident", 19, 2, 16, 1))
sketch5.addConstraint(Sketcher.Constraint("Coincident", 20, 2, 21, 1))
sketch5.addConstraint(Sketcher.Constraint("Coincident", 21, 2, 22, 1))
sketch5.addConstraint(Sketcher.Constraint("Coincident", 22, 2, 23, 1))
sketch5.addConstraint(Sketcher.Constraint("Coincident", 23, 2, 20, 1))
sketch5.addConstraint(Sketcher.Constraint("Coincident", 24, 2, 25, 1))
sketch5.addConstraint(Sketcher.Constraint("Coincident", 25, 2, 26, 1))
sketch5.addConstraint(Sketcher.Constraint("Coincident", 26, 2, 27, 1))
sketch5.addConstraint(Sketcher.Constraint("Coincident", 27, 2, 24, 1))
sketch5.addConstraint(Sketcher.Constraint("Coincident", 28, 2, 29, 1))
sketch5.addConstraint(Sketcher.Constraint("Coincident", 29, 2, 30, 1))
sketch5.addConstraint(Sketcher.Constraint("Coincident", 30, 2, 31, 1))
sketch5.addConstraint(Sketcher.Constraint("Coincident", 31, 2, 28, 1))
sketch5.addConstraint(Sketcher.Constraint("Coincident", 32, 2, 33, 1))
sketch5.addConstraint(Sketcher.Constraint("Coincident", 33, 2, 34, 1))
sketch5.addConstraint(Sketcher.Constraint("Coincident", 34, 2, 35, 1))
sketch5.addConstraint(Sketcher.Constraint("Coincident", 35, 2, 32, 1))
sketch5.addConstraint(Sketcher.Constraint("Coincident", 36, 2, 37, 1))
sketch5.addConstraint(Sketcher.Constraint("Coincident", 37, 2, 38, 1))
sketch5.addConstraint(Sketcher.Constraint("Coincident", 38, 2, 39, 1))
sketch5.addConstraint(Sketcher.Constraint("Coincident", 39, 2, 36, 1))
sketch5.addConstraint(Sketcher.Constraint("Coincident", 40, 2, 41, 1))
sketch5.addConstraint(Sketcher.Constraint("Coincident", 41, 2, 42, 1))
sketch5.addConstraint(Sketcher.Constraint("Coincident", 42, 2, 43, 1))
sketch5.addConstraint(Sketcher.Constraint("Coincident", 43, 2, 40, 1))
sketch5.addConstraint(Sketcher.Constraint("Coincident", 44, 2, 45, 1))
sketch5.addConstraint(Sketcher.Constraint("Coincident", 45, 2, 46, 1))
sketch5.addConstraint(Sketcher.Constraint("Coincident", 46, 2, 47, 1))
sketch5.addConstraint(Sketcher.Constraint("Coincident", 47, 2, 44, 1))
sketch5.addConstraint(Sketcher.Constraint("Vertical", 0))
sketch5.addConstraint(Sketcher.Constraint("Horizontal", 1))
sketch5.addConstraint(Sketcher.Constraint("Vertical", 2))
sketch5.addConstraint(Sketcher.Constraint("Horizontal", 3))
sketch5.addConstraint(Sketcher.Constraint("Vertical", 4))
sketch5.addConstraint(Sketcher.Constraint("Horizontal", 5))
sketch5.addConstraint(Sketcher.Constraint("Vertical", 6))
sketch5.addConstraint(Sketcher.Constraint("Horizontal", 7))
sketch5.addConstraint(Sketcher.Constraint("Vertical", 8))
sketch5.addConstraint(Sketcher.Constraint("Horizontal", 9))
sketch5.addConstraint(Sketcher.Constraint("Vertical", 10))
sketch5.addConstraint(Sketcher.Constraint("Horizontal", 11))
sketch5.addConstraint(Sketcher.Constraint("Vertical", 12))
sketch5.addConstraint(Sketcher.Constraint("Horizontal", 13))
sketch5.addConstraint(Sketcher.Constraint("Vertical", 14))
sketch5.addConstraint(Sketcher.Constraint("Horizontal", 15))
sketch5.addConstraint(Sketcher.Constraint("Vertical", 16))
sketch5.addConstraint(Sketcher.Constraint("Horizontal", 17))
sketch5.addConstraint(Sketcher.Constraint("Vertical", 18))
sketch5.addConstraint(Sketcher.Constraint("Horizontal", 19))
sketch5.addConstraint(Sketcher.Constraint("Vertical", 20))
sketch5.addConstraint(Sketcher.Constraint("Horizontal", 21))
sketch5.addConstraint(Sketcher.Constraint("Vertical", 22))
sketch5.addConstraint(Sketcher.Constraint("Horizontal", 23))
sketch5.addConstraint(Sketcher.Constraint("Vertical", 24))
sketch5.addConstraint(Sketcher.Constraint("Horizontal", 25))
sketch5.addConstraint(Sketcher.Constraint("Vertical", 26))
sketch5.addConstraint(Sketcher.Constraint("Horizontal", 27))
sketch5.addConstraint(Sketcher.Constraint("Vertical", 28))
sketch5.addConstraint(Sketcher.Constraint("Horizontal", 29))
sketch5.addConstraint(Sketcher.Constraint("Vertical", 30))
sketch5.addConstraint(Sketcher.Constraint("Horizontal", 31))
sketch5.addConstraint(Sketcher.Constraint("Vertical", 32))
sketch5.addConstraint(Sketcher.Constraint("Horizontal", 33))
sketch5.addConstraint(Sketcher.Constraint("Vertical", 34))
sketch5.addConstraint(Sketcher.Constraint("Horizontal", 35))
sketch5.addConstraint(Sketcher.Constraint("Vertical", 36))
sketch5.addConstraint(Sketcher.Constraint("Horizontal", 37))
sketch5.addConstraint(Sketcher.Constraint("Vertical", 38))
sketch5.addConstraint(Sketcher.Constraint("Horizontal", 39))
sketch5.addConstraint(Sketcher.Constraint("Vertical", 40))
sketch5.addConstraint(Sketcher.Constraint("Horizontal", 41))
sketch5.addConstraint(Sketcher.Constraint("Vertical", 42))
sketch5.addConstraint(Sketcher.Constraint("Horizontal", 43))
sketch5.addConstraint(Sketcher.Constraint("Vertical", 44))
sketch5.addConstraint(Sketcher.Constraint("Horizontal", 45))
sketch5.addConstraint(Sketcher.Constraint("Vertical", 46))
sketch5.addConstraint(Sketcher.Constraint("Horizontal", 47))
sketch5.addConstraint(Sketcher.Constraint("Horizontal", 1, 2, 16, 2))
sketch5.addConstraint(Sketcher.Constraint("Horizontal", 3, 2, 18, 2))
sketch5.addConstraint(Sketcher.Constraint("Horizontal", 17, 2, 20, 2))
sketch5.addConstraint(Sketcher.Constraint("Horizontal", 19, 2, 22, 2))
sketch5.addConstraint(Sketcher.Constraint("Horizontal", 5, 2, 24, 2))
sketch5.addConstraint(Sketcher.Constraint("Horizontal", 7, 2, 26, 2))
sketch5.addConstraint(Sketcher.Constraint("Horizontal", 9, 2, 28, 2))
sketch5.addConstraint(Sketcher.Constraint("Horizontal", 11, 2, 30, 2))
sketch5.addConstraint(Sketcher.Constraint("Horizontal", 13, 2, 32, 2))
sketch5.addConstraint(Sketcher.Constraint("Horizontal", 15, 2, 34, 2))
sketch5.addConstraint(Sketcher.Constraint("Horizontal", 33, 2, 36, 2))
sketch5.addConstraint(Sketcher.Constraint("Horizontal", 35, 2, 38, 2))
sketch5.addConstraint(Sketcher.Constraint("Horizontal", 29, 2, 40, 2))
sketch5.addConstraint(Sketcher.Constraint("Horizontal", 31, 2, 42, 2))
sketch5.addConstraint(Sketcher.Constraint("Horizontal", 25, 2, 44, 2))
sketch5.addConstraint(Sketcher.Constraint("Horizontal", 27, 2, 46, 2))
sketch5.addConstraint(Sketcher.Constraint("Vertical", 3, 2, 4, 2))
sketch5.addConstraint(Sketcher.Constraint("Vertical", 2, 2, 5, 2))
sketch5.addConstraint(Sketcher.Constraint("Vertical", 7, 2, 8, 2))
sketch5.addConstraint(Sketcher.Constraint("Vertical", 6, 2, 9, 2))
sketch5.addConstraint(Sketcher.Constraint("Vertical", 11, 2, 12, 2))
sketch5.addConstraint(Sketcher.Constraint("Vertical", 10, 2, 13, 2))
sketch5.addConstraint(Sketcher.Constraint("Vertical", 19, 2, 24, 2))
sketch5.addConstraint(Sketcher.Constraint("Vertical", 18, 2, 25, 2))
sketch5.addConstraint(Sketcher.Constraint("Vertical", 27, 2, 28, 2))
sketch5.addConstraint(Sketcher.Constraint("Vertical", 26, 2, 29, 2))
sketch5.addConstraint(Sketcher.Constraint("Vertical", 31, 2, 32, 2))
sketch5.addConstraint(Sketcher.Constraint("Vertical", 30, 2, 33, 2))
sketch5.addConstraint(Sketcher.Constraint("Vertical", 23, 2, 36, 2))
sketch5.addConstraint(Sketcher.Constraint("Vertical", 22, 2, 37, 2))
sketch5.addConstraint(Sketcher.Constraint("Vertical", 39, 2, 40, 2))
sketch5.addConstraint(Sketcher.Constraint("Vertical", 38, 2, 41, 2))
sketch5.addConstraint(Sketcher.Constraint("Vertical", 43, 2, 44, 2))
sketch5.addConstraint(Sketcher.Constraint("Vertical", 42, 2, 45, 2))
sketch5.addConstraint(Sketcher.Constraint("Equal", 15, 17))
sketch5.addConstraint(Sketcher.Constraint("Equal", 19, 21))
sketch5.addConstraint(Sketcher.Constraint("Equal", 2, 4))
sketch5.addConstraint(Sketcher.Constraint("Equal", 6, 8))
sketch5.addConstraint(Sketcher.Constraint("Equal", 10, 12))
sketch5.addConstraint(Sketcher.Constraint("DistanceX", 1, 1, 1, 2, Q("2.25 in")))
sketch5.addConstraint(Sketcher.Constraint("DistanceY", 0, 1, 0, 2, Q("1.25 in")))
sketch5.addConstraint(Sketcher.Constraint("DistanceX", 0, 2, -1, 1, Q("4.9 in")))
sketch5.addConstraint(Sketcher.Constraint("DistanceX", -1, 1, 17, 2, Q("0.9 in")))
sketch5.addConstraint(Sketcher.Constraint("DistanceX", -1, 1, 20, 2, Q("2.2 in")))
sketch5.addConstraint(Sketcher.Constraint("DistanceY", 3, 2, 4, 2, Q("3.4 in")))
sketch5.addConstraint(Sketcher.Constraint("DistanceY", 7, 2, 8, 2, Q("3.4 in")))
sketch5.addConstraint(Sketcher.Constraint("DistanceY", 11, 2, 12, 2, Q("3.4 in")))
sketch5.addConstraint(Sketcher.Constraint("DistanceY", 0, 2, -1, 1, Q("67.04 mm")))
pocket3 = body.newObject("PartDesign::Pocket", "Pocket002")
pocket3.Profile = sketch5
pocket3.Type = "ThroughAll"
pocket3.Reversed = True

# Sketch on XZ plane
sketch6 = body.newObject("Sketcher::SketchObject", "Sketch005")
sketch6.AttachmentSupport = (doc.getObject("XZ_Plane"), [""])
sketch6.MapMode = "FlatFace"
sketch6.AttachmentOffset = App.Placement(V(0, 0, -0.25 * 25.4), App.Rotation())
sketch6.addGeometry(Part.LineSegment(V(39.4, -43.8, 0), V(35.8, -40.3, 0)), False)
sketch6.addGeometry(Part.LineSegment(V(35.8, -40.3, 0), V(42.7, -33.4, 0)), False)
sketch6.addGeometry(Part.LineSegment(V(42.7, -33.4, 0), V(35.8, -26.5, 0)), False)
sketch6.addGeometry(Part.LineSegment(V(35.8, -26.5, 0), V(42.7, -19.6, 0)), False)
sketch6.addGeometry(Part.LineSegment(V(42.7, -19.6, 0), V(35.8, -12.7, 0)), False)
sketch6.addGeometry(Part.LineSegment(V(35.8, -12.7, 0), V(42.7, -5.8, 0)), False)
sketch6.addGeometry(Part.LineSegment(V(42.7, -5.8, 0), V(35.8, 1.1, 0)), False)
sketch6.addGeometry(Part.LineSegment(V(35.8, 1.1, 0), V(42.7, 8, 0)), False)
sketch6.addGeometry(Part.LineSegment(V(42.7, 8, 0), V(35.8, 14.9, 0)), False)
sketch6.addGeometry(Part.LineSegment(V(35.8, 14.9, 0), V(42.7, 21.8, 0)), False)
sketch6.addGeometry(Part.LineSegment(V(42.7, 21.8, 0), V(35.8, 28.6, 0)), False)
sketch6.addGeometry(Part.LineSegment(V(35.8, 28.6, 0), V(42.7, 35.5, 0)), False)
sketch6.addGeometry(Part.LineSegment(V(42.7, 35.5, 0), V(39.4, 38.8, 0)), False)
sketch6.addGeometry(Part.LineSegment(V(39.4, 38.8, 0), V(39.4, 108, 0)), False)
sketch6.addGeometry(Part.LineSegment(V(39.4, 108, 0), V(150, 108, 0)), False)
sketch6.addGeometry(Part.LineSegment(V(150, 108, 0), V(150, -113.2, 0)), False)
sketch6.addGeometry(Part.LineSegment(V(150, -113.2, 0), V(39.4, -113.2, 0)), False)
sketch6.addGeometry(Part.LineSegment(V(39.4, -113.2, 0), V(39.4, -43.8, 0)), False)
sketch6.addConstraint(Sketcher.Constraint("Coincident", 0, 2, 1, 1))
sketch6.addConstraint(Sketcher.Constraint("Coincident", 1, 2, 2, 1))
sketch6.addConstraint(Sketcher.Constraint("Coincident", 2, 2, 3, 1))
sketch6.addConstraint(Sketcher.Constraint("Coincident", 3, 2, 4, 1))
sketch6.addConstraint(Sketcher.Constraint("Coincident", 4, 2, 5, 1))
sketch6.addConstraint(Sketcher.Constraint("Coincident", 5, 2, 6, 1))
sketch6.addConstraint(Sketcher.Constraint("Coincident", 6, 2, 7, 1))
sketch6.addConstraint(Sketcher.Constraint("Coincident", 7, 2, 8, 1))
sketch6.addConstraint(Sketcher.Constraint("Coincident", 8, 2, 9, 1))
sketch6.addConstraint(Sketcher.Constraint("Coincident", 9, 2, 10, 1))
sketch6.addConstraint(Sketcher.Constraint("Coincident", 10, 2, 11, 1))
sketch6.addConstraint(Sketcher.Constraint("Coincident", 11, 2, 12, 1))
sketch6.addConstraint(Sketcher.Constraint("Coincident", 12, 2, 13, 1))
sketch6.addConstraint(Sketcher.Constraint("Coincident", 13, 2, 14, 1))
sketch6.addConstraint(Sketcher.Constraint("Coincident", 14, 2, 15, 1))
sketch6.addConstraint(Sketcher.Constraint("Coincident", 15, 2, 16, 1))
sketch6.addConstraint(Sketcher.Constraint("Coincident", 16, 2, 17, 1))
sketch6.addConstraint(Sketcher.Constraint("Coincident", 17, 2, 0, 1))
sketch6.addConstraint(Sketcher.Constraint("Vertical", 13))
sketch6.addConstraint(Sketcher.Constraint("Horizontal", 14))
sketch6.addConstraint(Sketcher.Constraint("Vertical", 15))
sketch6.addConstraint(Sketcher.Constraint("Horizontal", 16))
sketch6.addConstraint(Sketcher.Constraint("Vertical", 17))
sketch6.addConstraint(Sketcher.Constraint("Perpendicular", 0, 1))
sketch6.addConstraint(Sketcher.Constraint("Perpendicular", 1, 2))
sketch6.addConstraint(Sketcher.Constraint("Perpendicular", 2, 3))
sketch6.addConstraint(Sketcher.Constraint("Perpendicular", 3, 4))
sketch6.addConstraint(Sketcher.Constraint("Perpendicular", 4, 5))
sketch6.addConstraint(Sketcher.Constraint("Perpendicular", 5, 6))
sketch6.addConstraint(Sketcher.Constraint("Perpendicular", 6, 7))
sketch6.addConstraint(Sketcher.Constraint("Perpendicular", 7, 8))
sketch6.addConstraint(Sketcher.Constraint("Perpendicular", 8, 9))
sketch6.addConstraint(Sketcher.Constraint("Perpendicular", 9, 10))
sketch6.addConstraint(Sketcher.Constraint("Perpendicular", 10, 11))
sketch6.addConstraint(Sketcher.Constraint("Perpendicular", 11, 12))
sketch6.addConstraint(Sketcher.Constraint("Vertical", 0, 2, 2, 2))
sketch6.addConstraint(Sketcher.Constraint("Vertical", 1, 2, 3, 2))
sketch6.addConstraint(Sketcher.Constraint("Vertical", 2, 2, 4, 2))
sketch6.addConstraint(Sketcher.Constraint("Vertical", 3, 2, 5, 2))
sketch6.addConstraint(Sketcher.Constraint("Vertical", 4, 2, 6, 2))
sketch6.addConstraint(Sketcher.Constraint("Vertical", 5, 2, 7, 2))
sketch6.addConstraint(Sketcher.Constraint("Vertical", 6, 2, 8, 2))
sketch6.addConstraint(Sketcher.Constraint("Vertical", 7, 2, 9, 2))
sketch6.addConstraint(Sketcher.Constraint("Vertical", 8, 2, 10, 2))
sketch6.addConstraint(Sketcher.Constraint("Vertical", 9, 2, 11, 2))
sketch6.addConstraint(Sketcher.Constraint("Vertical", 13, 2, 16, 2))
sketch6.addConstraint(Sketcher.Constraint("Equal", 1, 2))
sketch6.addConstraint(Sketcher.Constraint("DistanceX", -1, 1, 12, 2, Q("1.55 in")))
sketch6.addConstraint(Sketcher.Constraint("DistanceY", -1, 1, 13, 2, Q("4.25 in")))
sketch6.addConstraint(Sketcher.Constraint("DistanceY", 0, 2, 5, 2, Q("34.453098 mm")))
sketch6.addConstraint(Sketcher.Constraint("DistanceX", 14, 1, 14, 2, Q("110.657202 mm")))
sketch6.addConstraint(Sketcher.Constraint("DistanceY", 13, 1, 13, 2, Q("69.109336 mm")))
sketch6.addConstraint(Sketcher.Constraint("DistanceY", 15, 2, 15, 1, Q("221.110256 mm")))
sketch6.addConstraint(Sketcher.Constraint("DistanceX", -1, 1, 0, 2, Q("35.78877 mm")))
pocket4 = body.newObject("PartDesign::Pocket", "Pocket003")
pocket4.Profile = sketch6
pocket4.Type = "ThroughAll"
pocket4.Reversed = True

doc.recompute()
